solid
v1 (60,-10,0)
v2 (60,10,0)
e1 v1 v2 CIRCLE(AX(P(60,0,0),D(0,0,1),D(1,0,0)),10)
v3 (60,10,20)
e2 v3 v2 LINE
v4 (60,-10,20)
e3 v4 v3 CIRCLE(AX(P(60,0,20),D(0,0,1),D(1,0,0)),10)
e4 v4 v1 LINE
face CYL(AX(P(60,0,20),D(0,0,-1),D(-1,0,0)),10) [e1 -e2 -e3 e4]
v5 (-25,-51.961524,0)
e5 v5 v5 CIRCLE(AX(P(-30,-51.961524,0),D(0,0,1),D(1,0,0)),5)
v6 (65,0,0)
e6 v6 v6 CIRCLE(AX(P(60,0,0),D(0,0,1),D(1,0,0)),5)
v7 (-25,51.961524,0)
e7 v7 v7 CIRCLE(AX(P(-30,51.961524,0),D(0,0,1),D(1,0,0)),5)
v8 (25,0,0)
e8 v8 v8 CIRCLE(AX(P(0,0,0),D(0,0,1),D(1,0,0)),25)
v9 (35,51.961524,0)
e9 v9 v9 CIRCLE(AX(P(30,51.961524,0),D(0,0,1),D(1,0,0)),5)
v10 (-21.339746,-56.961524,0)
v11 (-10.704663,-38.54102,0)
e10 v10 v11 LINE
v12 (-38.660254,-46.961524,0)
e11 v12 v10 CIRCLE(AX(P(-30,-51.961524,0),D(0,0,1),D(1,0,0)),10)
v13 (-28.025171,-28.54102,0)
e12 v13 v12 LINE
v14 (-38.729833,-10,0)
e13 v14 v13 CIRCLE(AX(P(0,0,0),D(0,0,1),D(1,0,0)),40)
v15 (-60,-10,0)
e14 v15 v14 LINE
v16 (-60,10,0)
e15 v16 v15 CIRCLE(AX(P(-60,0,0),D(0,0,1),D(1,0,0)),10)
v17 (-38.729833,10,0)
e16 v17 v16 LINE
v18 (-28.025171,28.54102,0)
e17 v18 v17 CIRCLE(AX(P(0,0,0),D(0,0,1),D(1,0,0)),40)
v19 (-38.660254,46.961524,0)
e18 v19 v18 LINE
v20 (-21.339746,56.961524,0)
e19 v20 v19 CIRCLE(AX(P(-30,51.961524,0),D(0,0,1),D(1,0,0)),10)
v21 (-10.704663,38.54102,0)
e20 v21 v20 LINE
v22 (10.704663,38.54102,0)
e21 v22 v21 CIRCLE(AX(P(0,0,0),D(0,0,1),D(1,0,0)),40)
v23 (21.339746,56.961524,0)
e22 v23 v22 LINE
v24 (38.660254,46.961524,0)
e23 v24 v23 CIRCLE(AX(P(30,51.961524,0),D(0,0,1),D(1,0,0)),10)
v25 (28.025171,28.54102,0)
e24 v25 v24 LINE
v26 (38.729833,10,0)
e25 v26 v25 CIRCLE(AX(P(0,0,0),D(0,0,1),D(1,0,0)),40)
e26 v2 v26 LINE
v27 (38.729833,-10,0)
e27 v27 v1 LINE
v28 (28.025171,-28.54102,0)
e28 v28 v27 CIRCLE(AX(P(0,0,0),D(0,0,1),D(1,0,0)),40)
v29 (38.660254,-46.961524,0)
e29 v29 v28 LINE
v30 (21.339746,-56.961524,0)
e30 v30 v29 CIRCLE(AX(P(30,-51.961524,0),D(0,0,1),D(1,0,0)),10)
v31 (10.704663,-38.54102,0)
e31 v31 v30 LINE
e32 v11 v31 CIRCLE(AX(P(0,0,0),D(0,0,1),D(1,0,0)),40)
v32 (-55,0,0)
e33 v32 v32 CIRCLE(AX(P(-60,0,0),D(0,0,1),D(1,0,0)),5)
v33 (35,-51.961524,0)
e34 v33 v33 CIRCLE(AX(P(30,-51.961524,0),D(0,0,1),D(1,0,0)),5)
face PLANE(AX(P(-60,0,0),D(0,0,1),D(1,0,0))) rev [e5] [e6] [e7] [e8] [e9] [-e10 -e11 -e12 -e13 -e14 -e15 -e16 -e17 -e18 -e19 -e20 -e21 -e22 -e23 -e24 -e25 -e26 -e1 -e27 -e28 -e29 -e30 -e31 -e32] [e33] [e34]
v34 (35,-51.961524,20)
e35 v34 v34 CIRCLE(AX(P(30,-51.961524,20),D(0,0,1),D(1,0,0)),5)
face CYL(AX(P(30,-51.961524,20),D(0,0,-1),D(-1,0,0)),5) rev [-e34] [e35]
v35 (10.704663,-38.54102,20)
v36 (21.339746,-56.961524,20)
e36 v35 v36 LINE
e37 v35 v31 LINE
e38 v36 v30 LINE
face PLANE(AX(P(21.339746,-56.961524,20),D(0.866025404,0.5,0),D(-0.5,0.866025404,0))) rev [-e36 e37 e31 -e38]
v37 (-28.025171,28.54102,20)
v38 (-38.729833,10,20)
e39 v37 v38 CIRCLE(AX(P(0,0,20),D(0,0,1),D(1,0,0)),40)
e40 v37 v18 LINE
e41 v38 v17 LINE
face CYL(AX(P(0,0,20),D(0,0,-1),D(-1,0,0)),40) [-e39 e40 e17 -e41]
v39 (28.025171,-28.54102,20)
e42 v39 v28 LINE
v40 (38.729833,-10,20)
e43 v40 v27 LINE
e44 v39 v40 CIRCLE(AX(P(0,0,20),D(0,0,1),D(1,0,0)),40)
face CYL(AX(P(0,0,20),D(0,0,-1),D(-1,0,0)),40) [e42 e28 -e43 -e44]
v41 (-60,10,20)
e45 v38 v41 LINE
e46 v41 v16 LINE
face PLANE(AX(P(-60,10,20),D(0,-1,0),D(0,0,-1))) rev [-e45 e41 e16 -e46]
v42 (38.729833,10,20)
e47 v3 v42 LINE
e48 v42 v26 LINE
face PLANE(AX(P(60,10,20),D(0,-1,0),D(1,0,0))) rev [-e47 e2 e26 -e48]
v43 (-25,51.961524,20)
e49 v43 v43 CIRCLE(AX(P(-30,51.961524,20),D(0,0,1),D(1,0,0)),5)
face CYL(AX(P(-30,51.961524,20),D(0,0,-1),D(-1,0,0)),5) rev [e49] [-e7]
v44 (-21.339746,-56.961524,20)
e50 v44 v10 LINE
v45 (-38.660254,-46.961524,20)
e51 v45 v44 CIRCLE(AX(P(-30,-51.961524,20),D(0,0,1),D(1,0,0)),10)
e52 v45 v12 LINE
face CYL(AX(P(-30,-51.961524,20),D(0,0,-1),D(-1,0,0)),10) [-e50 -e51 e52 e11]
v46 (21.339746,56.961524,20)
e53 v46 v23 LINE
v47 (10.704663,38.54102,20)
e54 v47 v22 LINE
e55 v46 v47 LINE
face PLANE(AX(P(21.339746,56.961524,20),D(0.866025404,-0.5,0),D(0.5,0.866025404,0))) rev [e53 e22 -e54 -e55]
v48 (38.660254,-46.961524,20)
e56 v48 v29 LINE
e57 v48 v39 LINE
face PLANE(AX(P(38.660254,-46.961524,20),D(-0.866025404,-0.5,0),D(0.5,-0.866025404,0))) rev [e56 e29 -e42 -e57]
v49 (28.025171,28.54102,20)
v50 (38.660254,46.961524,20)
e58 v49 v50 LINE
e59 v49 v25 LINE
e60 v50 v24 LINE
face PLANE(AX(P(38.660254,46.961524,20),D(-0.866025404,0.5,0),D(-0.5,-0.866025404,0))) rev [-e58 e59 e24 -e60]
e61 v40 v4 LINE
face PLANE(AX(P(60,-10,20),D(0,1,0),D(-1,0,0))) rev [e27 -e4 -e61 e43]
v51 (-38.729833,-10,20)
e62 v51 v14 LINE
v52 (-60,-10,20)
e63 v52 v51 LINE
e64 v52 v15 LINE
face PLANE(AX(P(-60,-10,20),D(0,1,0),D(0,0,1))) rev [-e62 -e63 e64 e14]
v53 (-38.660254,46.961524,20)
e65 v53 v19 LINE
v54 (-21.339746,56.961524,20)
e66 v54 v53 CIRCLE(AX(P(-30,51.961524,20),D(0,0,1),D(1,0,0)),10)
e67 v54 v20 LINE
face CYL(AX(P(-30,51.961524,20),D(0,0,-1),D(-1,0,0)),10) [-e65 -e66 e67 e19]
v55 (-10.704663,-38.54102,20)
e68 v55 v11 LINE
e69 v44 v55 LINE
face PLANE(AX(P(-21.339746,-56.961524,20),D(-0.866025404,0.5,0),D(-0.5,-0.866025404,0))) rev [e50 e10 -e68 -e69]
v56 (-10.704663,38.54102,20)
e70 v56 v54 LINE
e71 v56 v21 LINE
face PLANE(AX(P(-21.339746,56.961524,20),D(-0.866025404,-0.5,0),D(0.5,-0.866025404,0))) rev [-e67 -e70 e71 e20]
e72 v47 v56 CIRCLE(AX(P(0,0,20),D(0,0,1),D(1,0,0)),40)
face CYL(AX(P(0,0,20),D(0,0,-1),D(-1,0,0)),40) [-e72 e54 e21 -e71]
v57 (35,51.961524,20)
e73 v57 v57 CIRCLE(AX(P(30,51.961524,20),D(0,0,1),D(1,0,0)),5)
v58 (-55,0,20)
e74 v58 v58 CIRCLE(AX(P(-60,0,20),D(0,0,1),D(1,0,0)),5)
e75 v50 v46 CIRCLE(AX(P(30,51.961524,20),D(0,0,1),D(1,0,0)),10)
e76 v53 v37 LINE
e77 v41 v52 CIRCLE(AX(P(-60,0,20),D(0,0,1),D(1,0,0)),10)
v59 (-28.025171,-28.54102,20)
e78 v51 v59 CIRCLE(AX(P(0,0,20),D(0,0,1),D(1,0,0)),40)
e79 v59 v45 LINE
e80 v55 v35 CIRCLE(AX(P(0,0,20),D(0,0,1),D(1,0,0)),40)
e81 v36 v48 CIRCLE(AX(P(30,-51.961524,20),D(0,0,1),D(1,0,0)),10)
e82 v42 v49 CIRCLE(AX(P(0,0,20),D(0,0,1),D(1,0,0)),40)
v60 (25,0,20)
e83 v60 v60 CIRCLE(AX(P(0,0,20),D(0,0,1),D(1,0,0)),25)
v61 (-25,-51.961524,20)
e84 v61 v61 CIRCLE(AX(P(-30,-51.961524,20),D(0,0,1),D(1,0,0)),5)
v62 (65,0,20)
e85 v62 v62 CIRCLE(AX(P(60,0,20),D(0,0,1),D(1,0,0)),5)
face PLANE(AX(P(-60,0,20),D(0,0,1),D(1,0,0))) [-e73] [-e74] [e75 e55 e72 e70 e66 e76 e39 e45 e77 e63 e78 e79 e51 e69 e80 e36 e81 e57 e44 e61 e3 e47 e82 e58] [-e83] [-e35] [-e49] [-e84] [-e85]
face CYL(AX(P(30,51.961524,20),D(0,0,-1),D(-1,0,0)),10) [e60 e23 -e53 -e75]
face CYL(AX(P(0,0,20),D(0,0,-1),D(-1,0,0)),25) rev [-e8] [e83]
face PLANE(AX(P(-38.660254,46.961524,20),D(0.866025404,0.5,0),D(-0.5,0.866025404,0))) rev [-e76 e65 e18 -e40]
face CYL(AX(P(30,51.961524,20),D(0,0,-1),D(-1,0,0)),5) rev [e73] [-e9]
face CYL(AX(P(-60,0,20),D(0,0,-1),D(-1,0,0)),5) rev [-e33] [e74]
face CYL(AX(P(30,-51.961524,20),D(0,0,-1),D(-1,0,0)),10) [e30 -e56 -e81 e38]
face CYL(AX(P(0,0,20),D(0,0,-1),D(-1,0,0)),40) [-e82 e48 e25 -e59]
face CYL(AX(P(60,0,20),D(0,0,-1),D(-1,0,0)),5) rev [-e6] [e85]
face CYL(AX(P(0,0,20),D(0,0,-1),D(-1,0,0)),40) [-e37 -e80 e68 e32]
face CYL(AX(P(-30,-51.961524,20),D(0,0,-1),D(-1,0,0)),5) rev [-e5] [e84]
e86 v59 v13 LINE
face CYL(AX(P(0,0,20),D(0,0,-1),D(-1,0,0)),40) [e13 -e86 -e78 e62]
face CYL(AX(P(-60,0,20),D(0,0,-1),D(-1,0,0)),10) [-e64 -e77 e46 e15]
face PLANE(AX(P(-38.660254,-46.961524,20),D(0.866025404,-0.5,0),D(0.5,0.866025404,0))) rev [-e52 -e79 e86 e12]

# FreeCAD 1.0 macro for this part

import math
import FreeCAD as App
import Part
import Sketcher
from FreeCAD import Vector
Q = App.Units.Quantity

doc = App.newDocument("Part")
body = doc.addObject("PartDesign::Body", "Body")

sketch1 = body.newObject("Sketcher::SketchObject", "Sketch")
sketch1.AttachmentSupport = (doc.getObject("XY_Plane"), [""])
sketch1.MapMode = "FlatFace"
sketch1.addGeometry([
    Part.LineSegment(Vector(-39, 10, 0), Vector(-60, 10, 0)),
    Part.ArcOfCircle(Part.Circle(Vector(-60, 0, 0), Vector(0, 0, 1), 10), math.radians(90), math.radians(270)),
    Part.LineSegment(Vector(-60, -10, 0), Vector(-39, -10, 0)),
    Part.ArcOfCircle(Part.Circle(Vector(0, 0, 0), Vector(0, 0, 1), 40), math.radians(-166), math.radians(-134)),
    Part.LineSegment(Vector(-28, -29, 0), Vector(-39, -47, 0)),
    Part.ArcOfCircle(Part.Circle(Vector(-30, -52, 0), Vector(0, 0, 1), 10), math.radians(150), math.radians(330)),
    Part.LineSegment(Vector(-21, -57, 0), Vector(-11, -39, 0)),
    Part.ArcOfCircle(Part.Circle(Vector(0, 0, 0), Vector(0, 0, 1), 40), math.radians(-106), math.radians(-74)),
    Part.LineSegment(Vector(11, -39, 0), Vector(21, -57, 0)),
    Part.ArcOfCircle(Part.Circle(Vector(30, -52, 0), Vector(0, 0, 1), 10), math.radians(-150), math.radians(30)),
    Part.LineSegment(Vector(39, -47, 0), Vector(28, -29, 0)),
    Part.ArcOfCircle(Part.Circle(Vector(0, 0, 0), Vector(0, 0, 1), 40), math.radians(-46), math.radians(-14)),
    Part.LineSegment(Vector(39, -10, 0), Vector(60, -10, 0)),
    Part.ArcOfCircle(Part.Circle(Vector(60, 0, 0), Vector(0, 0, 1), 10), math.radians(-90), math.radians(90)),
    Part.LineSegment(Vector(60, 10, 0), Vector(39, 10, 0)),
    Part.ArcOfCircle(Part.Circle(Vector(0, 0, 0), Vector(0, 0, 1), 40), math.radians(14), math.radians(46)),
    Part.LineSegment(Vector(28, 29, 0), Vector(39, 47, 0)),
    Part.ArcOfCircle(Part.Circle(Vector(30, 52, 0), Vector(0, 0, 1), 10), math.radians(-30), math.radians(150)),
    Part.LineSegment(Vector(21, 57, 0), Vector(11, 39, 0)),
    Part.ArcOfCircle(Part.Circle(Vector(0, 0, 0), Vector(0, 0, 1), 40), math.radians(74), math.radians(106)),
    Part.LineSegment(Vector(-11, 39, 0), Vector(-21, 57, 0)),
    Part.ArcOfCircle(Part.Circle(Vector(-30, 52, 0), Vector(0, 0, 1), 10), math.radians(30), math.radians(210)),
    Part.LineSegment(Vector(-39, 47, 0), Vector(-28, 29, 0)),
    Part.ArcOfCircle(Part.Circle(Vector(0, 0, 0), Vector(0, 0, 1), 40), math.radians(134), math.radians(166)),
    Part.Circle(Vector(30, -52, 0), Vector(0, 0, 1), 5),
    Part.Circle(Vector(-30, -52, 0), Vector(0, 0, 1), 5),
    Part.Circle(Vector(60, 0, 0), Vector(0, 0, 1), 5),
    Part.Circle(Vector(30, 52, 0), Vector(0, 0, 1), 5),
    Part.Circle(Vector(0, 0, 0), Vector(0, 0, 1), 25),
    Part.Circle(Vector(-60, 0, 0), Vector(0, 0, 1), 5),
    Part.Circle(Vector(-30, 52, 0), Vector(0, 0, 1), 5),
], False)
sketch1.addConstraint([
    Sketcher.Constraint("Tangent", 0, 2, 1, 1),
    Sketcher.Constraint("Tangent", 1, 2, 2, 1),
    Sketcher.Constraint("Coincident", 2, 2, 3, 1),
    Sketcher.Constraint("Coincident", 3, 2, 4, 1),
    Sketcher.Constraint("Tangent", 4, 2, 5, 1),
    Sketcher.Constraint("Tangent", 5, 2, 6, 1),
    Sketcher.Constraint("Coincident", 6, 2, 7, 1),
    Sketcher.Constraint("Coincident", 7, 2, 8, 1),
    Sketcher.Constraint("Tangent", 8, 2, 9, 1),
    Sketcher.Constraint("Tangent", 9, 2, 10, 1),
    Sketcher.Constraint("Coincident", 10, 2, 11, 1),
    Sketcher.Constraint("Coincident", 11, 2, 12, 1),
    Sketcher.Constraint("Tangent", 12, 2, 13, 1),
    Sketcher.Constraint("Tangent", 13, 2, 14, 1),
    Sketcher.Constraint("Coincident", 14, 2, 15, 1),
    Sketcher.Constraint("Coincident", 15, 2, 16, 1),
    Sketcher.Constraint("Tangent", 16, 2, 17, 1),
    Sketcher.Constraint("Tangent", 17, 2, 18, 1),
    Sketcher.Constraint("Coincident", 18, 2, 19, 1),
    Sketcher.Constraint("Coincident", 19, 2, 20, 1),
    Sketcher.Constraint("Tangent", 20, 2, 21, 1),
    Sketcher.Constraint("Tangent", 21, 2, 22, 1),
    Sketcher.Constraint("Coincident", 22, 2, 23, 1),
    Sketcher.Constraint("Coincident", 23, 2, 0, 1),
    Sketcher.Constraint("Horizontal", 0),
    Sketcher.Constraint("Horizontal", 2),
    Sketcher.Constraint("Horizontal", 12),
    Sketcher.Constraint("Horizontal", 14),
    Sketcher.Constraint("Coincident", 3, 3, -1, 1),
    Sketcher.Constraint("Coincident", 7, 3, -1, 1),
    Sketcher.Constraint("Coincident", 11, 3, -1, 1),
    Sketcher.Constraint("Coincident", 15, 3, -1, 1),
    Sketcher.Constraint("Coincident", 19, 3, -1, 1),
    Sketcher.Constraint("Coincident", 23, 3, -1, 1),
    Sketcher.Constraint("Coincident", 28, 3, -1, 1),
    Sketcher.Constraint("Coincident", 24, 3, 9, 3),
    Sketcher.Constraint("Coincident", 25, 3, 5, 3),
    Sketcher.Constraint("Coincident", 26, 3, 13, 3),
    Sketcher.Constraint("Coincident", 27, 3, 17, 3),
    Sketcher.Constraint("Coincident", 29, 3, 1, 3),
    Sketcher.Constraint("Coincident", 30, 3, 21, 3),
    Sketcher.Constraint("Equal", 1, 5),
    Sketcher.Constraint("Equal", 3, 7),
    Sketcher.Constraint("Equal", 5, 9),
    Sketcher.Constraint("Equal", 7, 11),
    Sketcher.Constraint("Equal", 9, 13),
    Sketcher.Constraint("Equal", 11, 15),
    Sketcher.Constraint("Equal", 13, 17),
    Sketcher.Constraint("Equal", 15, 19),
    Sketcher.Constraint("Equal", 17, 21),
    Sketcher.Constraint("Equal", 19, 23),
    Sketcher.Constraint("Equal", 24, 25),
    Sketcher.Constraint("Equal", 25, 26),
    Sketcher.Constraint("Equal", 26, 27),
    Sketcher.Constraint("Equal", 27, 29),
    Sketcher.Constraint("Equal", 29, 30),
    Sketcher.Constraint("Symmetric", 1, 3, 13, 3, -1, 1),
    Sketcher.Constraint("Symmetric", 5, 3, 17, 3, -1, 1),
    Sketcher.Constraint("Symmetric", 9, 3, 21, 3, -1, 1),
    Sketcher.Constraint("Symmetric", 5, 3, 9, 3, -2),
    Sketcher.Constraint("PointOnObject", 1, 3, -1),
    Sketcher.Constraint("Parallel", 4, 6),
    Sketcher.Constraint("Parallel", 8, 10),
    Sketcher.Constraint("Parallel", 6, 16),
    Sketcher.Constraint("Parallel", 16, 18),
    Sketcher.Constraint("Parallel", 10, 20),
    Sketcher.Constraint("Parallel", 20, 22),
    Sketcher.Constraint("Horizontal", 6, 2, 7, 2),
    Sketcher.Constraint("Equal", 4, 6),
    Sketcher.Constraint("Diameter", 24, Q("10 mm")),
    Sketcher.Constraint("Diameter", 28, Q("50 mm")),
    Sketcher.Constraint("Radius", 1, Q("10 mm")),
    Sketcher.Constraint("Radius", 3, Q("40 mm")),
    Sketcher.Constraint("Angle", 4, Q("-120 deg")),
    Sketcher.Constraint("DistanceX", 1, 3, -1, 1, Q("60 mm")),
    Sketcher.Constraint("DistanceX", 5, 3, -1, 1, Q("30 mm")),
])
pad1 = body.newObject("PartDesign::Pad", "Pad")
pad1.Profile = sketch1
pad1.Length = 20

doc.recompute()
